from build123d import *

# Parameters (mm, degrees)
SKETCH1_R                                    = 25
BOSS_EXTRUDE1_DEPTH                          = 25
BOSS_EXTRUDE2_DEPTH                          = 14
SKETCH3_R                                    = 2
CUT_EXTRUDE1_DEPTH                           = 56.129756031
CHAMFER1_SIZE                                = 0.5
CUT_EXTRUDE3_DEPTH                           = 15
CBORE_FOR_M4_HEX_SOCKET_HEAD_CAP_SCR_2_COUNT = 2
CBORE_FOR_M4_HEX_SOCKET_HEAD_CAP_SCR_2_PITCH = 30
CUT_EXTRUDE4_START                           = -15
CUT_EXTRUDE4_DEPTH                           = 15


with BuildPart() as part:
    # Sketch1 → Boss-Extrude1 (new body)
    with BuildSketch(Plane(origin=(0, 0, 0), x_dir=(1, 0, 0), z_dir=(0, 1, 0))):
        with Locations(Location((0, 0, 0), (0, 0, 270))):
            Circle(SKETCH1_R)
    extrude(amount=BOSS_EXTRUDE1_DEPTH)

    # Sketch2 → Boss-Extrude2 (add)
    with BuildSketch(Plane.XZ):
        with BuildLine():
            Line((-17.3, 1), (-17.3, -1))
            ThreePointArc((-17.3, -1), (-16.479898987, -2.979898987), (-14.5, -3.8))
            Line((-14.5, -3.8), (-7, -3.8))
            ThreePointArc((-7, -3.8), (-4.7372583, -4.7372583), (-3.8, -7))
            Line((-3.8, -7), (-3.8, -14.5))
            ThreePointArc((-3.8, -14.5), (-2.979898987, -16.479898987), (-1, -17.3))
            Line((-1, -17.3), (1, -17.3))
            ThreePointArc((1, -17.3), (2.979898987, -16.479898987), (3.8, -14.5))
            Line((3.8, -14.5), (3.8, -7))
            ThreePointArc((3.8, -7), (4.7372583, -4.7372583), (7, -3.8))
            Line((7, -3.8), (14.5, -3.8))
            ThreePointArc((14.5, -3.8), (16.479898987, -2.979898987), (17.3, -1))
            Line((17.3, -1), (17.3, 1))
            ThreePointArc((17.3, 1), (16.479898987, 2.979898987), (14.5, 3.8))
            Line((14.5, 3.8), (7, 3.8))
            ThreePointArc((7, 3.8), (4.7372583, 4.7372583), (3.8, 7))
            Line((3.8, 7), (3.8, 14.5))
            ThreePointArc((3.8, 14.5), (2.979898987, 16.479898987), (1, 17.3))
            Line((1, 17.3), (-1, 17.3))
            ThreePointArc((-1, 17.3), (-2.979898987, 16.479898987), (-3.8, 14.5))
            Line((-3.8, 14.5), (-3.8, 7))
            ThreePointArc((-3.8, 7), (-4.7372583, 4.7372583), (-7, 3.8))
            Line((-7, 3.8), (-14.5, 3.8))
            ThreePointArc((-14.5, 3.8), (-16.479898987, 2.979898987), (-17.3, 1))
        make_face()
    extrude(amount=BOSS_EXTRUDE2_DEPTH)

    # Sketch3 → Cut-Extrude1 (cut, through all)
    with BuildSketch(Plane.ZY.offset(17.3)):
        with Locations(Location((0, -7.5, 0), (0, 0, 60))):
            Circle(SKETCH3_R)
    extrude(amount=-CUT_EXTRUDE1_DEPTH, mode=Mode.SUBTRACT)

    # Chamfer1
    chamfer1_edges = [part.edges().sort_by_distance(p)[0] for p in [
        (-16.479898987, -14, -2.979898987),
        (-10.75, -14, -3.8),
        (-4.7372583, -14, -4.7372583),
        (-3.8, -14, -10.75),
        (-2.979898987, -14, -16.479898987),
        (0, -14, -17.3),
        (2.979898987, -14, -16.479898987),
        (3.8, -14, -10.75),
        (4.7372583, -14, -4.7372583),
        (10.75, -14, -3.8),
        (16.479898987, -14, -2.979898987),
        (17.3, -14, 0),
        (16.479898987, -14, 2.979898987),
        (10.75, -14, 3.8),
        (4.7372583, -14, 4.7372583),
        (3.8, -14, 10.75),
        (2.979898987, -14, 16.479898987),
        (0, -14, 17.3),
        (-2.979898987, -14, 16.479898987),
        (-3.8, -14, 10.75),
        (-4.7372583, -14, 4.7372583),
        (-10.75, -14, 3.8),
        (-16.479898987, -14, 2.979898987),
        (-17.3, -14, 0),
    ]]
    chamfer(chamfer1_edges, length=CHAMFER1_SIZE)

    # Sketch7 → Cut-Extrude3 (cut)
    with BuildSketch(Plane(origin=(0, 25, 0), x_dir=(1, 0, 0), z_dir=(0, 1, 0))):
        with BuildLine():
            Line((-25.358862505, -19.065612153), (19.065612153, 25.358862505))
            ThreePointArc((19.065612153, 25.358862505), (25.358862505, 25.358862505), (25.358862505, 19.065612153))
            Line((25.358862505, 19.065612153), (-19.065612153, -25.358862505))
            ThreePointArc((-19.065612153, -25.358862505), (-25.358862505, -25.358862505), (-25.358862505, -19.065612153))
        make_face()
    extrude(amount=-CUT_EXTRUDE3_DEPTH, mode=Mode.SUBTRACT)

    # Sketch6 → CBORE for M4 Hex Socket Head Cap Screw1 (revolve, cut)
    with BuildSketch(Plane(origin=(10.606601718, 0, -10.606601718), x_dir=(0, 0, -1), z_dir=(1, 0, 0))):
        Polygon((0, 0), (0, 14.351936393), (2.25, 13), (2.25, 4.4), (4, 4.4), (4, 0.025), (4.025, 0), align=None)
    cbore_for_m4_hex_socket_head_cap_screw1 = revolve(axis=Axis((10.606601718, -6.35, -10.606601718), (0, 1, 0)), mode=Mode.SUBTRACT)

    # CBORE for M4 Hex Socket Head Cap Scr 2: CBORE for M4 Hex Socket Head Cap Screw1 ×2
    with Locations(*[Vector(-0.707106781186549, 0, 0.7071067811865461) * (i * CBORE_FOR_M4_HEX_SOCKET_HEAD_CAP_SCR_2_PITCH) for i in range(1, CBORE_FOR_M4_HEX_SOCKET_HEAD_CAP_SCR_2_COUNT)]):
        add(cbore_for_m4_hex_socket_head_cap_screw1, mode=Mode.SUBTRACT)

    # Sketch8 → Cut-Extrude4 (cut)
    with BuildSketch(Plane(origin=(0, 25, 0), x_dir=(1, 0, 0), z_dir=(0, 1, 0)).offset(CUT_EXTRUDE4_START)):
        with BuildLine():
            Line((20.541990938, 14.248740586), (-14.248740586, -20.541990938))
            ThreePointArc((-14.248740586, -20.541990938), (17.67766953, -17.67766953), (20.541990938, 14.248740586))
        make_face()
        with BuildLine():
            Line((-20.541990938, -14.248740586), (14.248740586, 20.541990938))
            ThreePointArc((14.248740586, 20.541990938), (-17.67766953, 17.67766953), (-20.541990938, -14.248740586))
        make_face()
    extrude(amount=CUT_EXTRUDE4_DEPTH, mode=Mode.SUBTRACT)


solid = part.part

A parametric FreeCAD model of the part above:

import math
import FreeCAD as App
import Part
import Sketcher

V = App.Vector
Q = App.Units.Quantity


def edges_at(feature, points):
    """Names of the edges that pass closest to the given points."""
    edges = feature.Shape.Edges
    near = lambda p: min(range(len(edges)), key=lambda i: edges[i].distToShape(Part.Vertex(*p))[0])
    return sorted({f"Edge{near(p) + 1}" for p in points})

doc = App.newDocument("Part")
body = doc.addObject("PartDesign::Body", "Body")

sketch1 = doc.addObject("Sketcher::SketchObject", "Sketch")
body.addObject(sketch1)
sketch1.AttachmentSupport = (doc.XZ_Plane, [""])
sketch1.MapMode = "FlatFace"
sketch1.addGeometry(Part.Circle(V(0, 0, 0), V(0, 0, 1), 25), False)
sketch1.addConstraint([
    Sketcher.Constraint("Coincident", 0, 3, -1, 1),
    Sketcher.Constraint("Diameter", 0, Q("50 mm")),
])
pad1 = doc.addObject("PartDesign::Pad", "Pad")
body.addObject(pad1)
pad1.Profile = sketch1
pad1.Length = 25
pad1.Reversed = True

sketch2 = doc.addObject("Sketcher::SketchObject", "Sketch001")
body.addObject(sketch2)
sketch2.AttachmentSupport = (doc.XZ_Plane, [""])
sketch2.MapMode = "FlatFace"
sketch2.addGeometry([
    Part.LineSegment(V(-17.3, 1, 0), V(-17.3, -1, 0)),
    Part.ArcOfCircle(Part.Circle(V(-14.5, -1, 0), V(0, 0, 1), 2.8), math.radians(-180), math.radians(-90)),
    Part.LineSegment(V(-14.5, -3.8, 0), V(-7, -3.8, 0)),
    Part.ArcOfCircle(Part.Circle(V(-7, -7, 0), V(0, 0, 1), 3.2), math.radians(0), math.radians(90)),
    Part.LineSegment(V(-3.8, -7, 0), V(-3.8, -14.5, 0)),
    Part.ArcOfCircle(Part.Circle(V(-1, -14.5, 0), V(0, 0, 1), 2.8), math.radians(-180), math.radians(-90)),
    Part.LineSegment(V(-1, -17.3, 0), V(1, -17.3, 0)),
    Part.ArcOfCircle(Part.Circle(V(1, -14.5, 0), V(0, 0, 1), 2.8), math.radians(-90), math.radians(0)),
    Part.LineSegment(V(3.8, -14.5, 0), V(3.8, -7, 0)),
    Part.ArcOfCircle(Part.Circle(V(7, -7, 0), V(0, 0, 1), 3.2), math.radians(90), math.radians(180)),
    Part.LineSegment(V(7, -3.8, 0), V(14.5, -3.8, 0)),
    Part.ArcOfCircle(Part.Circle(V(14.5, -1, 0), V(0, 0, 1), 2.8), math.radians(-90), math.radians(0)),
    Part.LineSegment(V(17.3, -1, 0), V(17.3, 1, 0)),
    Part.ArcOfCircle(Part.Circle(V(14.5, 1, 0), V(0, 0, 1), 2.8), math.radians(0), math.radians(90)),
    Part.LineSegment(V(14.5, 3.8, 0), V(7, 3.8, 0)),
    Part.ArcOfCircle(Part.Circle(V(7, 7, 0), V(0, 0, 1), 3.2), math.radians(180), math.radians(270)),
    Part.LineSegment(V(3.8, 7, 0), V(3.8, 14.5, 0)),
    Part.ArcOfCircle(Part.Circle(V(1, 14.5, 0), V(0, 0, 1), 2.8), math.radians(0), math.radians(90)),
    Part.LineSegment(V(1, 17.3, 0), V(-1, 17.3, 0)),
    Part.ArcOfCircle(Part.Circle(V(-1, 14.5, 0), V(0, 0, 1), 2.8), math.radians(90), math.radians(180)),
    Part.LineSegment(V(-3.8, 14.5, 0), V(-3.8, 7, 0)),
    Part.ArcOfCircle(Part.Circle(V(-7, 7, 0), V(0, 0, 1), 3.2), math.radians(-90), math.radians(0)),
    Part.LineSegment(V(-7, 3.8, 0), V(-14.5, 3.8, 0)),
    Part.ArcOfCircle(Part.Circle(V(-14.5, 1, 0), V(0, 0, 1), 2.8), math.radians(90), math.radians(180)),
], False)
sketch2.addConstraint([
    Sketcher.Constraint("Tangent", 0, 2, 1, 1),
    Sketcher.Constraint("Tangent", 1, 2, 2, 1),
    Sketcher.Constraint("Tangent", 2, 2, 3, 2),
    Sketcher.Constraint("Tangent", 3, 1, 4, 1),
    Sketcher.Constraint("Tangent", 4, 2, 5, 1),
    Sketcher.Constraint("Tangent", 5, 2, 6, 1),
    Sketcher.Constraint("Tangent", 6, 2, 7, 1),
    Sketcher.Constraint("Tangent", 7, 2, 8, 1),
    Sketcher.Constraint("Tangent", 8, 2, 9, 2),
    Sketcher.Constraint("Tangent", 9, 1, 10, 1),
    Sketcher.Constraint("Tangent", 10, 2, 11, 1),
    Sketcher.Constraint("Tangent", 11, 2, 12, 1),
    Sketcher.Constraint("Tangent", 12, 2, 13, 1),
    Sketcher.Constraint("Tangent", 13, 2, 14, 1),
    Sketcher.Constraint("Tangent", 14, 2, 15, 2),
    Sketcher.Constraint("Tangent", 15, 1, 16, 1),
    Sketcher.Constraint("Tangent", 16, 2, 17, 1),
    Sketcher.Constraint("Tangent", 17, 2, 18, 1),
    Sketcher.Constraint("Tangent", 18, 2, 19, 1),
    Sketcher.Constraint("Tangent", 19, 2, 20, 1),
    Sketcher.Constraint("Tangent", 20, 2, 21, 2),
    Sketcher.Constraint("Tangent", 21, 1, 22, 1),
    Sketcher.Constraint("Tangent", 22, 2, 23, 1),
    Sketcher.Constraint("Tangent", 23, 2, 0, 1),
    Sketcher.Constraint("Vertical", 0),
    Sketcher.Constraint("Horizontal", 2),
    Sketcher.Constraint("Vertical", 4),
    Sketcher.Constraint("Horizontal", 6),
    Sketcher.Constraint("Vertical", 8),
    Sketcher.Constraint("Horizontal", 10),
    Sketcher.Constraint("Vertical", 12),
    Sketcher.Constraint("Horizontal", 14),
    Sketcher.Constraint("Vertical", 16),
    Sketcher.Constraint("Horizontal", 18),
    Sketcher.Constraint("Vertical", 20),
    Sketcher.Constraint("Horizontal", 22),
    Sketcher.Constraint("Equal", 1, 5),
    Sketcher.Constraint("Equal", 5, 7),
    Sketcher.Constraint("Equal", 3, 9),
    Sketcher.Constraint("Equal", 7, 11),
    Sketcher.Constraint("Equal", 11, 13),
    Sketcher.Constraint("Equal", 9, 15),
    Sketcher.Constraint("Equal", 13, 17),
    Sketcher.Constraint("Equal", 17, 19),
    Sketcher.Constraint("Equal", 15, 21),
    Sketcher.Constraint("Equal", 19, 23),
    Sketcher.Constraint("Symmetric", 1, 3, 13, 3, -1, 1),
    Sketcher.Constraint("Symmetric", 5, 3, 17, 3, -1, 1),
    Sketcher.Constraint("Symmetric", 9, 3, 21, 3, -1, 1),
    Sketcher.Constraint("Symmetric", 3, 3, 9, 3, -2),
    Sketcher.Constraint("Equal", 18, 0),
    Sketcher.Constraint("Equal", 22, 4),
    Sketcher.Constraint("Radius", 1, Q("2.8 mm")),
    Sketcher.Constraint("Radius", 3, Q("3.2 mm")),
    Sketcher.Constraint("DistanceX", 6, 1, 6, 2, Q("2 mm")),
    Sketcher.Constraint("DistanceX", 2, 1, 2, 2, Q("7.5 mm")),
])
pad2 = doc.addObject("PartDesign::Pad", "Pad001")
body.addObject(pad2)
pad2.Profile = sketch2
pad2.Length = 14

sketch3 = doc.addObject("Sketcher::SketchObject", "Sketch002")
body.addObject(sketch3)
sketch3.AttachmentSupport = (doc.YZ_Plane, [""])
sketch3.MapMode = "FlatFace"
sketch3.AttachmentOffset = App.Placement(V(0, 0, -17.3), App.Rotation())
sketch3.addGeometry(Part.Circle(V(-7.5, 0, 0), V(0, 0, 1), 2), False)
sketch3.addConstraint([
    Sketcher.Constraint("PointOnObject", 0, 3, -1),
    Sketcher.Constraint("Diameter", 0, Q("4 mm")),
    Sketcher.Constraint("DistanceX", 0, 3, -1, 1, Q("7.5 mm")),
])
pocket1 = doc.addObject("PartDesign::Pocket", "Pocket")
body.addObject(pocket1)
pocket1.Profile = sketch3
pocket1.Type = "ThroughAll"
pocket1.Reversed = True
doc.recompute()

chamfer = doc.addObject("PartDesign::Chamfer", "Chamfer")
body.addObject(chamfer)
chamfer.Base = (pocket1, edges_at(pocket1, [
    (-16.48, -14, -2.98),
    (-10.75, -14, -3.8),
    (-4.737, -14, -4.737),
    (-3.8, -14, -10.75),
    (-2.98, -14, -16.48),
    (0, -14, -17.3),
    (2.98, -14, -16.48),
    (3.8, -14, -10.75),
    (4.737, -14, -4.737),
    (10.75, -14, -3.8),
    (16.48, -14, -2.98),
    (17.3, -14, 0),
    (16.48, -14, 2.98),
    (10.75, -14, 3.8),
    (4.737, -14, 4.737),
    (3.8, -14, 10.75),
    (2.98, -14, 16.48),
    (0, -14, 17.3),
    (-2.98, -14, 16.48),
    (-3.8, -14, 10.75),
    (-4.737, -14, 4.737),
    (-10.75, -14, 3.8),
    (-16.48, -14, 2.98),
    (-17.3, -14, 0),
]))
chamfer.Size = 0.5

sketch4 = doc.addObject("Sketcher::SketchObject", "Sketch003")
body.addObject(sketch4)
sketch4.AttachmentSupport = (doc.XZ_Plane, [""])
sketch4.MapMode = "FlatFace"
sketch4.AttachmentOffset = App.Placement(V(0, 0, -25), App.Rotation())
sketch4.addGeometry([
    Part.LineSegment(V(19.1, -25.4, 0), V(-25.4, 19.1, 0)),
    Part.ArcOfCircle(Part.Circle(V(-22.2, 22.2, 0), V(0, 0, 1), 4.5), math.radians(45), math.radians(225)),
    Part.LineSegment(V(-19.1, 25.4, 0), V(25.4, -19.1, 0)),
    Part.ArcOfCircle(Part.Circle(V(22.2, -22.2, 0), V(0, 0, 1), 4.5), math.radians(-135), math.radians(45)),
], False)
sketch4.addConstraint([
    Sketcher.Constraint("Tangent", 0, 2, 1, 2),
    Sketcher.Constraint("Tangent", 1, 1, 2, 1),
    Sketcher.Constraint("Tangent", 2, 2, 3, 2),
    Sketcher.Constraint("Tangent", 3, 1, 0, 1),
    Sketcher.Constraint("Equal", 1, 3),
    Sketcher.Constraint("Symmetric", 1, 3, 3, 3, -1, 1),
    Sketcher.Constraint("Angle", 0, Q("135 deg")),
    Sketcher.Constraint("Radius", 1, Q("4.45 mm")),
    Sketcher.Constraint("DistanceX", 0, 2, 3, 3, Q("47.5711 mm")),
])
pocket2 = doc.addObject("PartDesign::Pocket", "Pocket001")
body.addObject(pocket2)
pocket2.Profile = sketch4
pocket2.Length = 15
pocket2.Reversed = True

sketch5 = doc.addObject("Sketcher::SketchObject", "Sketch004")
body.addObject(sketch5)
sketch5.AttachmentSupport = (doc.YZ_Plane, [""])
sketch5.MapMode = "FlatFace"
sketch5.AttachmentOffset = App.Placement(V(0, 0, 10.606602), App.Rotation())
sketch5.addGeometry([
    Part.LineSegment(V(14.352, -10.607, 0), V(0, -10.607, 0)),
    Part.LineSegment(V(0, -10.607, 0), V(0, -14.632, 0)),
    Part.LineSegment(V(0, -14.632, 0), V(0.025, -14.607, 0)),
    Part.LineSegment(V(0.025, -14.607, 0), V(4.4, -14.607, 0)),
    Part.LineSegment(V(4.4, -14.607, 0), V(4.4, -12.857, 0)),
    Part.LineSegment(V(4.4, -12.857, 0), V(13, -12.857, 0)),
    Part.LineSegment(V(13, -12.857, 0), V(14.352, -10.607, 0)),
], False)
sketch5.addGeometry(Part.LineSegment(V(0, -10.607, 0), V(14.352, -10.607, 0)), True)
sketch5.addConstraint([
    Sketcher.Constraint("Coincident", 0, 2, 1, 1),
    Sketcher.Constraint("Coincident", 1, 2, 2, 1),
    Sketcher.Constraint("Coincident", 2, 2, 3, 1),
    Sketcher.Constraint("Coincident", 3, 2, 4, 1),
    Sketcher.Constraint("Coincident", 4, 2, 5, 1),
    Sketcher.Constraint("Coincident", 5, 2, 6, 1),
    Sketcher.Constraint("Coincident", 6, 2, 0, 1),
    Sketcher.Constraint("Horizontal", 0),
    Sketcher.Constraint("Vertical", 1),
    Sketcher.Constraint("Horizontal", 3),
    Sketcher.Constraint("Vertical", 4),
    Sketcher.Constraint("Horizontal", 5),
    Sketcher.Constraint("Horizontal", 7),
    Sketcher.Constraint("Coincident", 7, 1, 0, 2),
    Sketcher.Constraint("PointOnObject", 0, 2, -2),
    Sketcher.Constraint("Equal", 0, 7),
    Sketcher.Constraint("Angle", 2, Q("45 deg")),
    Sketcher.Constraint("Angle", 6, Q("59 deg")),
    Sketcher.Constraint("DistanceX", 5, 1, 5, 2, Q("8.6 mm")),
    Sketcher.Constraint("DistanceX", -1, 1, 5, 2, Q("13 mm")),
    Sketcher.Constraint("DistanceY", 2, 2, 0, 2, Q("4 mm")),
    Sketcher.Constraint("DistanceY", 4, 1, 4, 2, Q("1.75 mm")),
    Sketcher.Constraint("DistanceX", 3, 1, 3, 2, Q("4.375 mm")),
    Sketcher.Constraint("DistanceY", 0, 2, -1, 1, Q("10.606602 mm")),
])
groove = doc.addObject("PartDesign::Groove", "Groove")
body.addObject(groove)
groove.Profile = sketch5
groove.ReferenceAxis = (sketch5, ["Axis0"])
groove.Angle = 360
doc.recompute()

datumline = doc.addObject("PartDesign::Line", "DatumLine")
body.addObject(datumline)
datumline.Placement = App.Placement(V(0, 0, 0), App.Rotation(V(0, 0, 1), V(-0.707106781, 0, 0.707106781)))
linearpattern = doc.addObject("PartDesign::LinearPattern", "LinearPattern")
body.addObject(linearpattern)
linearpattern.Originals = [groove]
linearpattern.Direction = (datumline, [""])
linearpattern.Mode = "offset"
linearpattern.Offset = 30
linearpattern.Occurrences = 2
body.Tip = linearpattern

sketch6 = doc.addObject("Sketcher::SketchObject", "Sketch005")
body.addObject(sketch6)
sketch6.AttachmentSupport = (doc.XZ_Plane, [""])
sketch6.MapMode = "FlatFace"
sketch6.AttachmentOffset = App.Placement(V(0, 0, -10), App.Rotation())
sketch6.addGeometry([
    Part.LineSegment(V(21, -14, 0), V(-14, 21, 0)),
    Part.ArcOfCircle(Part.Circle(V(0, 0, 0), V(0, 0, 1), 25), math.radians(-35), math.radians(125)),
    Part.LineSegment(V(-21, 14, 0), V(14, -21, 0)),
    Part.ArcOfCircle(Part.Circle(V(0, 0, 0), V(0, 0, 1), 25), math.radians(145), math.radians(305)),
], False)
sketch6.addConstraint([
    Sketcher.Constraint("Coincident", 0, 1, 1, 1),
    Sketcher.Constraint("Coincident", 1, 2, 0, 2),
    Sketcher.Constraint("Coincident", 2, 1, 3, 1),
    Sketcher.Constraint("Coincident", 3, 2, 2, 2),
    Sketcher.Constraint("Coincident", 1, 3, -1, 1),
    Sketcher.Constraint("Coincident", 3, 3, -1, 1),
    Sketcher.Constraint("Equal", 1, 3),
    Sketcher.Constraint("Parallel", 0, 2),
    Sketcher.Constraint("Equal", 0, 2),
    Sketcher.Constraint("Radius", 1, Q("25 mm")),
    Sketcher.Constraint("Angle", 0, Q("135 deg")),
    Sketcher.Constraint("DistanceX", -1, 1, 0, 1, Q("20.541991 mm")),
])
pocket3 = doc.addObject("PartDesign::Pocket", "Pocket002")
body.addObject(pocket3)
pocket3.Profile = sketch6
pocket3.Length = 15

doc.recompute()
